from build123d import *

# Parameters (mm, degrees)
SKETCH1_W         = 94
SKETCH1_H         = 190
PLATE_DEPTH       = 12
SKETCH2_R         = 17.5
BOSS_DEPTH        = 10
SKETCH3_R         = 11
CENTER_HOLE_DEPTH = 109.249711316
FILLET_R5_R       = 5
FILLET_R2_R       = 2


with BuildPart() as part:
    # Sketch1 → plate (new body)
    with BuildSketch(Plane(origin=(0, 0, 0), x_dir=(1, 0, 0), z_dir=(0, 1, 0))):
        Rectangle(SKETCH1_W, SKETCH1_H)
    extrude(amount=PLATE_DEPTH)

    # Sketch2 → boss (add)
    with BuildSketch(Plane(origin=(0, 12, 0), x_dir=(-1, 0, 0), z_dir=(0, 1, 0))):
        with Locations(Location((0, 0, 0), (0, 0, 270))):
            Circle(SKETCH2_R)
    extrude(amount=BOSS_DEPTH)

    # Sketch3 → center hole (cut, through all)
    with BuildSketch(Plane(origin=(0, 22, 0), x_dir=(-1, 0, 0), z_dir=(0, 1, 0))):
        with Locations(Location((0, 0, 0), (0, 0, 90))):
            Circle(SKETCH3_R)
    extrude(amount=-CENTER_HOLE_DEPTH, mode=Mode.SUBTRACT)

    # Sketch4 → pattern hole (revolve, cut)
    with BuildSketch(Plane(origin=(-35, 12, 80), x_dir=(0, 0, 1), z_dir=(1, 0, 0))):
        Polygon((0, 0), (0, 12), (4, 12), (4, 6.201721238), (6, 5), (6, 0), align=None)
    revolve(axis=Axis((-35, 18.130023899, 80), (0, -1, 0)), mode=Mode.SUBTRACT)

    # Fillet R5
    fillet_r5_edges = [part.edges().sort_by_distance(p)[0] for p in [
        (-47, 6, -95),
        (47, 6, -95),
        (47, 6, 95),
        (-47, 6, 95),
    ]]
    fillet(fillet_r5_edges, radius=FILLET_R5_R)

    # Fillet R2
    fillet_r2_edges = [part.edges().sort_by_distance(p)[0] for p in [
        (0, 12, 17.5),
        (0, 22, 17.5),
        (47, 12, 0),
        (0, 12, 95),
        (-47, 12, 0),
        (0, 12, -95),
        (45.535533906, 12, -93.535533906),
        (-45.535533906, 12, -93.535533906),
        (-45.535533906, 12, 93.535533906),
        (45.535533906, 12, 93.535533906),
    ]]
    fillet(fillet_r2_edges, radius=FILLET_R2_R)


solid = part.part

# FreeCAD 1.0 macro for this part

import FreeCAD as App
import Part
import Sketcher
from FreeCAD import Vector
Q = App.Units.Quantity


def edges_at(feature, points):
    """Names of the edges that pass closest to the given points."""
    edges = feature.Shape.Edges
    near = lambda p: min(range(len(edges)), key=lambda i: edges[i].distToShape(Part.Vertex(*p))[0])
    return sorted({f"Edge{near(p) + 1}" for p in points})

doc = App.newDocument("Part")
body = doc.addObject("PartDesign::Body", "Body")

# Sketch on XZ plane
sketch1 = body.newObject("Sketcher::SketchObject", "Sketch")
sketch1.AttachmentSupport = (doc.getObject("XZ_Plane"), [""])
sketch1.MapMode = "FlatFace"
sketch1.addGeometry(Part.LineSegment(Vector(-47, -95, 0), Vector(-47, 95, 0)), False)
sketch1.addGeometry(Part.LineSegment(Vector(-47, 95, 0), Vector(47, 95, 0)), False)
sketch1.addGeometry(Part.LineSegment(Vector(47, 95, 0), Vector(47, -95, 0)), False)
sketch1.addGeometry(Part.LineSegment(Vector(47, -95, 0), Vector(-47, -95, 0)), False)
sketch1.addConstraint(Sketcher.Constraint("Coincident", 0, 2, 1, 1))
sketch1.addConstraint(Sketcher.Constraint("Coincident", 1, 2, 2, 1))
sketch1.addConstraint(Sketcher.Constraint("Coincident", 2, 2, 3, 1))
sketch1.addConstraint(Sketcher.Constraint("Coincident", 3, 2, 0, 1))
sketch1.addConstraint(Sketcher.Constraint("Vertical", 0))
sketch1.addConstraint(Sketcher.Constraint("Horizontal", 1))
sketch1.addConstraint(Sketcher.Constraint("Vertical", 2))
sketch1.addConstraint(Sketcher.Constraint("Horizontal", 3))
sketch1.addConstraint(Sketcher.Constraint("Symmetric", 0, 2, 2, 2, -1, 1))
sketch1.addConstraint(Sketcher.Constraint("DistanceX", 1, 1, 1, 2, 94.0))
sketch1.addConstraint(Sketcher.Constraint("DistanceY", 0, 1, 0, 2, 190.0))
pad1 = body.newObject("PartDesign::Pad", "Pad")
pad1.Profile = sketch1
pad1.Length = 12
pad1.Reversed = True

# Sketch on XZ plane
sketch2 = body.newObject("Sketcher::SketchObject", "Sketch001")
sketch2.AttachmentSupport = (doc.getObject("XZ_Plane"), [""])
sketch2.MapMode = "FlatFace"
sketch2.AttachmentOffset = App.Placement(Vector(0, 0, -12), App.Rotation())
sketch2.addGeometry(Part.Circle(Vector(0, 0, 0), Vector(0, 0, 1), 18), False)
sketch2.addConstraint(Sketcher.Constraint("Coincident", 0, 3, -1, 1))
sketch2.addConstraint(Sketcher.Constraint("Diameter", 0, 35.0))
pad2 = body.newObject("PartDesign::Pad", "Pad001")
pad2.Profile = sketch2
pad2.Length = 10
pad2.Reversed = True

# Sketch on XZ plane
sketch3 = body.newObject("Sketcher::SketchObject", "Sketch002")
sketch3.AttachmentSupport = (doc.getObject("XZ_Plane"), [""])
sketch3.MapMode = "FlatFace"
sketch3.AttachmentOffset = App.Placement(Vector(0, 0, -22), App.Rotation())
sketch3.addGeometry(Part.Circle(Vector(0, 0, 0), Vector(0, 0, 1), 11), False)
sketch3.addConstraint(Sketcher.Constraint("Coincident", 0, 3, -1, 1))
sketch3.addConstraint(Sketcher.Constraint("Diameter", 0, 22.0))
pocket1 = body.newObject("PartDesign::Pocket", "Pocket")
pocket1.Profile = sketch3
pocket1.Type = "ThroughAll"
pocket1.Reversed = True

# Sketch on YZ plane
sketch4 = body.newObject("Sketcher::SketchObject", "Sketch003")
sketch4.AttachmentSupport = (doc.getObject("YZ_Plane"), [""])
sketch4.MapMode = "FlatFace"
sketch4.AttachmentOffset = App.Placement(Vector(0, 0, -35), App.Rotation())
sketch4.addGeometry(Part.LineSegment(Vector(0, 80, 0), Vector(12, 80, 0)), False)
sketch4.addGeometry(Part.LineSegment(Vector(12, 80, 0), Vector(12, 86, 0)), False)
sketch4.addGeometry(Part.LineSegment(Vector(12, 86, 0), Vector(7, 86, 0)), False)
sketch4.addGeometry(Part.LineSegment(Vector(7, 86, 0), Vector(5.8, 84, 0)), False)
sketch4.addGeometry(Part.LineSegment(Vector(5.8, 84, 0), Vector(0, 84, 0)), False)
sketch4.addGeometry(Part.LineSegment(Vector(0, 84, 0), Vector(0, 80, 0)), False)
sketch4.addGeometry(Part.LineSegment(Vector(12, 80, 0), Vector(0, 80, 0)), True)  # axis
sketch4.addConstraint(Sketcher.Constraint("Coincident", 0, 2, 1, 1))
sketch4.addConstraint(Sketcher.Constraint("Coincident", 1, 2, 2, 1))
sketch4.addConstraint(Sketcher.Constraint("Coincident", 2, 2, 3, 1))
sketch4.addConstraint(Sketcher.Constraint("Coincident", 3, 2, 4, 1))
sketch4.addConstraint(Sketcher.Constraint("Coincident", 4, 2, 5, 1))
sketch4.addConstraint(Sketcher.Constraint("Coincident", 5, 2, 0, 1))
sketch4.addConstraint(Sketcher.Constraint("Horizontal", 0))
sketch4.addConstraint(Sketcher.Constraint("Vertical", 1))
sketch4.addConstraint(Sketcher.Constraint("Horizontal", 2))
sketch4.addConstraint(Sketcher.Constraint("Horizontal", 4))
sketch4.addConstraint(Sketcher.Constraint("Vertical", 5))
sketch4.addConstraint(Sketcher.Constraint("Horizontal", 6))
sketch4.addConstraint(Sketcher.Constraint("Coincident", 6, 1, 0, 2))
sketch4.addConstraint(Sketcher.Constraint("PointOnObject", 4, 2, -2))
sketch4.addConstraint(Sketcher.Constraint("PointOnObject", 6, 2, -2))
sketch4.addConstraint(Sketcher.Constraint("DistanceX", 0, 1, 0, 2, 12.0))
sketch4.addConstraint(Sketcher.Constraint("DistanceX", 2, 2, 2, 1, 5.0))
sketch4.addConstraint(Sketcher.Constraint("DistanceY", 1, 1, 1, 2, 6.0))
sketch4.addConstraint(Sketcher.Constraint("DistanceY", 5, 2, 5, 1, 4.0))
sketch4.addConstraint(Sketcher.Constraint("Angle", 3, Q("-121 deg")))
sketch4.addConstraint(Sketcher.Constraint("DistanceY", -1, 1, 0, 2, 80.0))
groove = body.newObject("PartDesign::Groove", "Groove")
groove.Profile = sketch4
groove.ReferenceAxis = (sketch4, ["Axis0"])
groove.Angle = 360
doc.recompute()

fillet = body.newObject("PartDesign::Fillet", "Fillet")
fillet.Base = (groove, edges_at(groove, [
    (-47, 6, -95),
    (47, 6, -95),
    (47, 6, 95),
    (-47, 6, 95),
]))
fillet.Radius = 5
doc.recompute()

fillet2 = body.newObject("PartDesign::Fillet", "Fillet001")
fillet2.Base = (fillet, edges_at(fillet, [
    (0, 12, 17.5),
    (0, 22, 17.5),
    (47, 12, 0),
    (0, 12, 95),
    (-47, 12, 0),
    (0, 12, -95),
    (45.536, 12, -93.536),
    (-45.536, 12, -93.536),
    (-45.536, 12, 93.536),
    (45.536, 12, 93.536),
]))
fillet2.Radius = 2

doc.recompute()
